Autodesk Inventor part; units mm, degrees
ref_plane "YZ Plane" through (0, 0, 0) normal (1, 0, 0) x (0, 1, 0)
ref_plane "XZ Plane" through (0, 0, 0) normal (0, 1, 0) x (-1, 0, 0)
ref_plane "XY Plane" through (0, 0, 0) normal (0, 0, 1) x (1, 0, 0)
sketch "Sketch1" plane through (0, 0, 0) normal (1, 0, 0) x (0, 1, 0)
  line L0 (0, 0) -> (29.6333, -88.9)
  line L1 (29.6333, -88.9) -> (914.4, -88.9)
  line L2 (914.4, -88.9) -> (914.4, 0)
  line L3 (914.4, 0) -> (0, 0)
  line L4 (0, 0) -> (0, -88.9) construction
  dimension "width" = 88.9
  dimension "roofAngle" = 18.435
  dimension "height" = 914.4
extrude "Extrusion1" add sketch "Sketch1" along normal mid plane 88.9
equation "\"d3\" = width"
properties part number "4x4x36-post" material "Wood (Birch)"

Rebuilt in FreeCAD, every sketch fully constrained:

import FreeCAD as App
import Part
import Sketcher
Q = App.Units.Quantity

doc = App.newDocument("Part")
body = doc.addObject("PartDesign::Body", "Body")

sketch1 = doc.addObject("Sketcher::SketchObject", "Sketch")
body.addObject(sketch1)
sketch1.AttachmentSupport = (doc.YZ_Plane, [""])
sketch1.MapMode = "FlatFace"
sketch1.addGeometry(Part.LineSegment(App.Vector(914, 0, 0), App.Vector(0, 0, 0)), False)
sketch1.addGeometry(Part.LineSegment(App.Vector(0, 0, 0), App.Vector(30, -89, 0)), False)
sketch1.addGeometry(Part.LineSegment(App.Vector(30, -89, 0), App.Vector(914, -89, 0)), False)
sketch1.addGeometry(Part.LineSegment(App.Vector(914, -89, 0), App.Vector(914, 0, 0)), False)
sketch1.addConstraint(Sketcher.Constraint("Coincident", 0, 2, 1, 1))
sketch1.addConstraint(Sketcher.Constraint("Coincident", 1, 2, 2, 1))
sketch1.addConstraint(Sketcher.Constraint("Coincident", 2, 2, 3, 1))
sketch1.addConstraint(Sketcher.Constraint("Coincident", 3, 2, 0, 1))
sketch1.addConstraint(Sketcher.Constraint("Horizontal", 0))
sketch1.addConstraint(Sketcher.Constraint("Horizontal", 2))
sketch1.addConstraint(Sketcher.Constraint("Vertical", 3))
sketch1.addConstraint(Sketcher.Constraint("Coincident", 0, 2, -1, 1))
sketch1.addConstraint(Sketcher.Constraint("DistanceX", 0, 2, 0, 1, Q("36 in")))
sketch1.addConstraint(Sketcher.Constraint("DistanceY", 3, 1, 3, 2, Q("3.5 in")))
sketch1.addConstraint(Sketcher.Constraint("DistanceX", 2, 1, 2, 2, 884.7667))
pad1 = doc.addObject("PartDesign::Pad", "Pad")
body.addObject(pad1)
pad1.Profile = sketch1
pad1.Length = Q("3.5 in")
pad1.Midplane = True

doc.recompute()
